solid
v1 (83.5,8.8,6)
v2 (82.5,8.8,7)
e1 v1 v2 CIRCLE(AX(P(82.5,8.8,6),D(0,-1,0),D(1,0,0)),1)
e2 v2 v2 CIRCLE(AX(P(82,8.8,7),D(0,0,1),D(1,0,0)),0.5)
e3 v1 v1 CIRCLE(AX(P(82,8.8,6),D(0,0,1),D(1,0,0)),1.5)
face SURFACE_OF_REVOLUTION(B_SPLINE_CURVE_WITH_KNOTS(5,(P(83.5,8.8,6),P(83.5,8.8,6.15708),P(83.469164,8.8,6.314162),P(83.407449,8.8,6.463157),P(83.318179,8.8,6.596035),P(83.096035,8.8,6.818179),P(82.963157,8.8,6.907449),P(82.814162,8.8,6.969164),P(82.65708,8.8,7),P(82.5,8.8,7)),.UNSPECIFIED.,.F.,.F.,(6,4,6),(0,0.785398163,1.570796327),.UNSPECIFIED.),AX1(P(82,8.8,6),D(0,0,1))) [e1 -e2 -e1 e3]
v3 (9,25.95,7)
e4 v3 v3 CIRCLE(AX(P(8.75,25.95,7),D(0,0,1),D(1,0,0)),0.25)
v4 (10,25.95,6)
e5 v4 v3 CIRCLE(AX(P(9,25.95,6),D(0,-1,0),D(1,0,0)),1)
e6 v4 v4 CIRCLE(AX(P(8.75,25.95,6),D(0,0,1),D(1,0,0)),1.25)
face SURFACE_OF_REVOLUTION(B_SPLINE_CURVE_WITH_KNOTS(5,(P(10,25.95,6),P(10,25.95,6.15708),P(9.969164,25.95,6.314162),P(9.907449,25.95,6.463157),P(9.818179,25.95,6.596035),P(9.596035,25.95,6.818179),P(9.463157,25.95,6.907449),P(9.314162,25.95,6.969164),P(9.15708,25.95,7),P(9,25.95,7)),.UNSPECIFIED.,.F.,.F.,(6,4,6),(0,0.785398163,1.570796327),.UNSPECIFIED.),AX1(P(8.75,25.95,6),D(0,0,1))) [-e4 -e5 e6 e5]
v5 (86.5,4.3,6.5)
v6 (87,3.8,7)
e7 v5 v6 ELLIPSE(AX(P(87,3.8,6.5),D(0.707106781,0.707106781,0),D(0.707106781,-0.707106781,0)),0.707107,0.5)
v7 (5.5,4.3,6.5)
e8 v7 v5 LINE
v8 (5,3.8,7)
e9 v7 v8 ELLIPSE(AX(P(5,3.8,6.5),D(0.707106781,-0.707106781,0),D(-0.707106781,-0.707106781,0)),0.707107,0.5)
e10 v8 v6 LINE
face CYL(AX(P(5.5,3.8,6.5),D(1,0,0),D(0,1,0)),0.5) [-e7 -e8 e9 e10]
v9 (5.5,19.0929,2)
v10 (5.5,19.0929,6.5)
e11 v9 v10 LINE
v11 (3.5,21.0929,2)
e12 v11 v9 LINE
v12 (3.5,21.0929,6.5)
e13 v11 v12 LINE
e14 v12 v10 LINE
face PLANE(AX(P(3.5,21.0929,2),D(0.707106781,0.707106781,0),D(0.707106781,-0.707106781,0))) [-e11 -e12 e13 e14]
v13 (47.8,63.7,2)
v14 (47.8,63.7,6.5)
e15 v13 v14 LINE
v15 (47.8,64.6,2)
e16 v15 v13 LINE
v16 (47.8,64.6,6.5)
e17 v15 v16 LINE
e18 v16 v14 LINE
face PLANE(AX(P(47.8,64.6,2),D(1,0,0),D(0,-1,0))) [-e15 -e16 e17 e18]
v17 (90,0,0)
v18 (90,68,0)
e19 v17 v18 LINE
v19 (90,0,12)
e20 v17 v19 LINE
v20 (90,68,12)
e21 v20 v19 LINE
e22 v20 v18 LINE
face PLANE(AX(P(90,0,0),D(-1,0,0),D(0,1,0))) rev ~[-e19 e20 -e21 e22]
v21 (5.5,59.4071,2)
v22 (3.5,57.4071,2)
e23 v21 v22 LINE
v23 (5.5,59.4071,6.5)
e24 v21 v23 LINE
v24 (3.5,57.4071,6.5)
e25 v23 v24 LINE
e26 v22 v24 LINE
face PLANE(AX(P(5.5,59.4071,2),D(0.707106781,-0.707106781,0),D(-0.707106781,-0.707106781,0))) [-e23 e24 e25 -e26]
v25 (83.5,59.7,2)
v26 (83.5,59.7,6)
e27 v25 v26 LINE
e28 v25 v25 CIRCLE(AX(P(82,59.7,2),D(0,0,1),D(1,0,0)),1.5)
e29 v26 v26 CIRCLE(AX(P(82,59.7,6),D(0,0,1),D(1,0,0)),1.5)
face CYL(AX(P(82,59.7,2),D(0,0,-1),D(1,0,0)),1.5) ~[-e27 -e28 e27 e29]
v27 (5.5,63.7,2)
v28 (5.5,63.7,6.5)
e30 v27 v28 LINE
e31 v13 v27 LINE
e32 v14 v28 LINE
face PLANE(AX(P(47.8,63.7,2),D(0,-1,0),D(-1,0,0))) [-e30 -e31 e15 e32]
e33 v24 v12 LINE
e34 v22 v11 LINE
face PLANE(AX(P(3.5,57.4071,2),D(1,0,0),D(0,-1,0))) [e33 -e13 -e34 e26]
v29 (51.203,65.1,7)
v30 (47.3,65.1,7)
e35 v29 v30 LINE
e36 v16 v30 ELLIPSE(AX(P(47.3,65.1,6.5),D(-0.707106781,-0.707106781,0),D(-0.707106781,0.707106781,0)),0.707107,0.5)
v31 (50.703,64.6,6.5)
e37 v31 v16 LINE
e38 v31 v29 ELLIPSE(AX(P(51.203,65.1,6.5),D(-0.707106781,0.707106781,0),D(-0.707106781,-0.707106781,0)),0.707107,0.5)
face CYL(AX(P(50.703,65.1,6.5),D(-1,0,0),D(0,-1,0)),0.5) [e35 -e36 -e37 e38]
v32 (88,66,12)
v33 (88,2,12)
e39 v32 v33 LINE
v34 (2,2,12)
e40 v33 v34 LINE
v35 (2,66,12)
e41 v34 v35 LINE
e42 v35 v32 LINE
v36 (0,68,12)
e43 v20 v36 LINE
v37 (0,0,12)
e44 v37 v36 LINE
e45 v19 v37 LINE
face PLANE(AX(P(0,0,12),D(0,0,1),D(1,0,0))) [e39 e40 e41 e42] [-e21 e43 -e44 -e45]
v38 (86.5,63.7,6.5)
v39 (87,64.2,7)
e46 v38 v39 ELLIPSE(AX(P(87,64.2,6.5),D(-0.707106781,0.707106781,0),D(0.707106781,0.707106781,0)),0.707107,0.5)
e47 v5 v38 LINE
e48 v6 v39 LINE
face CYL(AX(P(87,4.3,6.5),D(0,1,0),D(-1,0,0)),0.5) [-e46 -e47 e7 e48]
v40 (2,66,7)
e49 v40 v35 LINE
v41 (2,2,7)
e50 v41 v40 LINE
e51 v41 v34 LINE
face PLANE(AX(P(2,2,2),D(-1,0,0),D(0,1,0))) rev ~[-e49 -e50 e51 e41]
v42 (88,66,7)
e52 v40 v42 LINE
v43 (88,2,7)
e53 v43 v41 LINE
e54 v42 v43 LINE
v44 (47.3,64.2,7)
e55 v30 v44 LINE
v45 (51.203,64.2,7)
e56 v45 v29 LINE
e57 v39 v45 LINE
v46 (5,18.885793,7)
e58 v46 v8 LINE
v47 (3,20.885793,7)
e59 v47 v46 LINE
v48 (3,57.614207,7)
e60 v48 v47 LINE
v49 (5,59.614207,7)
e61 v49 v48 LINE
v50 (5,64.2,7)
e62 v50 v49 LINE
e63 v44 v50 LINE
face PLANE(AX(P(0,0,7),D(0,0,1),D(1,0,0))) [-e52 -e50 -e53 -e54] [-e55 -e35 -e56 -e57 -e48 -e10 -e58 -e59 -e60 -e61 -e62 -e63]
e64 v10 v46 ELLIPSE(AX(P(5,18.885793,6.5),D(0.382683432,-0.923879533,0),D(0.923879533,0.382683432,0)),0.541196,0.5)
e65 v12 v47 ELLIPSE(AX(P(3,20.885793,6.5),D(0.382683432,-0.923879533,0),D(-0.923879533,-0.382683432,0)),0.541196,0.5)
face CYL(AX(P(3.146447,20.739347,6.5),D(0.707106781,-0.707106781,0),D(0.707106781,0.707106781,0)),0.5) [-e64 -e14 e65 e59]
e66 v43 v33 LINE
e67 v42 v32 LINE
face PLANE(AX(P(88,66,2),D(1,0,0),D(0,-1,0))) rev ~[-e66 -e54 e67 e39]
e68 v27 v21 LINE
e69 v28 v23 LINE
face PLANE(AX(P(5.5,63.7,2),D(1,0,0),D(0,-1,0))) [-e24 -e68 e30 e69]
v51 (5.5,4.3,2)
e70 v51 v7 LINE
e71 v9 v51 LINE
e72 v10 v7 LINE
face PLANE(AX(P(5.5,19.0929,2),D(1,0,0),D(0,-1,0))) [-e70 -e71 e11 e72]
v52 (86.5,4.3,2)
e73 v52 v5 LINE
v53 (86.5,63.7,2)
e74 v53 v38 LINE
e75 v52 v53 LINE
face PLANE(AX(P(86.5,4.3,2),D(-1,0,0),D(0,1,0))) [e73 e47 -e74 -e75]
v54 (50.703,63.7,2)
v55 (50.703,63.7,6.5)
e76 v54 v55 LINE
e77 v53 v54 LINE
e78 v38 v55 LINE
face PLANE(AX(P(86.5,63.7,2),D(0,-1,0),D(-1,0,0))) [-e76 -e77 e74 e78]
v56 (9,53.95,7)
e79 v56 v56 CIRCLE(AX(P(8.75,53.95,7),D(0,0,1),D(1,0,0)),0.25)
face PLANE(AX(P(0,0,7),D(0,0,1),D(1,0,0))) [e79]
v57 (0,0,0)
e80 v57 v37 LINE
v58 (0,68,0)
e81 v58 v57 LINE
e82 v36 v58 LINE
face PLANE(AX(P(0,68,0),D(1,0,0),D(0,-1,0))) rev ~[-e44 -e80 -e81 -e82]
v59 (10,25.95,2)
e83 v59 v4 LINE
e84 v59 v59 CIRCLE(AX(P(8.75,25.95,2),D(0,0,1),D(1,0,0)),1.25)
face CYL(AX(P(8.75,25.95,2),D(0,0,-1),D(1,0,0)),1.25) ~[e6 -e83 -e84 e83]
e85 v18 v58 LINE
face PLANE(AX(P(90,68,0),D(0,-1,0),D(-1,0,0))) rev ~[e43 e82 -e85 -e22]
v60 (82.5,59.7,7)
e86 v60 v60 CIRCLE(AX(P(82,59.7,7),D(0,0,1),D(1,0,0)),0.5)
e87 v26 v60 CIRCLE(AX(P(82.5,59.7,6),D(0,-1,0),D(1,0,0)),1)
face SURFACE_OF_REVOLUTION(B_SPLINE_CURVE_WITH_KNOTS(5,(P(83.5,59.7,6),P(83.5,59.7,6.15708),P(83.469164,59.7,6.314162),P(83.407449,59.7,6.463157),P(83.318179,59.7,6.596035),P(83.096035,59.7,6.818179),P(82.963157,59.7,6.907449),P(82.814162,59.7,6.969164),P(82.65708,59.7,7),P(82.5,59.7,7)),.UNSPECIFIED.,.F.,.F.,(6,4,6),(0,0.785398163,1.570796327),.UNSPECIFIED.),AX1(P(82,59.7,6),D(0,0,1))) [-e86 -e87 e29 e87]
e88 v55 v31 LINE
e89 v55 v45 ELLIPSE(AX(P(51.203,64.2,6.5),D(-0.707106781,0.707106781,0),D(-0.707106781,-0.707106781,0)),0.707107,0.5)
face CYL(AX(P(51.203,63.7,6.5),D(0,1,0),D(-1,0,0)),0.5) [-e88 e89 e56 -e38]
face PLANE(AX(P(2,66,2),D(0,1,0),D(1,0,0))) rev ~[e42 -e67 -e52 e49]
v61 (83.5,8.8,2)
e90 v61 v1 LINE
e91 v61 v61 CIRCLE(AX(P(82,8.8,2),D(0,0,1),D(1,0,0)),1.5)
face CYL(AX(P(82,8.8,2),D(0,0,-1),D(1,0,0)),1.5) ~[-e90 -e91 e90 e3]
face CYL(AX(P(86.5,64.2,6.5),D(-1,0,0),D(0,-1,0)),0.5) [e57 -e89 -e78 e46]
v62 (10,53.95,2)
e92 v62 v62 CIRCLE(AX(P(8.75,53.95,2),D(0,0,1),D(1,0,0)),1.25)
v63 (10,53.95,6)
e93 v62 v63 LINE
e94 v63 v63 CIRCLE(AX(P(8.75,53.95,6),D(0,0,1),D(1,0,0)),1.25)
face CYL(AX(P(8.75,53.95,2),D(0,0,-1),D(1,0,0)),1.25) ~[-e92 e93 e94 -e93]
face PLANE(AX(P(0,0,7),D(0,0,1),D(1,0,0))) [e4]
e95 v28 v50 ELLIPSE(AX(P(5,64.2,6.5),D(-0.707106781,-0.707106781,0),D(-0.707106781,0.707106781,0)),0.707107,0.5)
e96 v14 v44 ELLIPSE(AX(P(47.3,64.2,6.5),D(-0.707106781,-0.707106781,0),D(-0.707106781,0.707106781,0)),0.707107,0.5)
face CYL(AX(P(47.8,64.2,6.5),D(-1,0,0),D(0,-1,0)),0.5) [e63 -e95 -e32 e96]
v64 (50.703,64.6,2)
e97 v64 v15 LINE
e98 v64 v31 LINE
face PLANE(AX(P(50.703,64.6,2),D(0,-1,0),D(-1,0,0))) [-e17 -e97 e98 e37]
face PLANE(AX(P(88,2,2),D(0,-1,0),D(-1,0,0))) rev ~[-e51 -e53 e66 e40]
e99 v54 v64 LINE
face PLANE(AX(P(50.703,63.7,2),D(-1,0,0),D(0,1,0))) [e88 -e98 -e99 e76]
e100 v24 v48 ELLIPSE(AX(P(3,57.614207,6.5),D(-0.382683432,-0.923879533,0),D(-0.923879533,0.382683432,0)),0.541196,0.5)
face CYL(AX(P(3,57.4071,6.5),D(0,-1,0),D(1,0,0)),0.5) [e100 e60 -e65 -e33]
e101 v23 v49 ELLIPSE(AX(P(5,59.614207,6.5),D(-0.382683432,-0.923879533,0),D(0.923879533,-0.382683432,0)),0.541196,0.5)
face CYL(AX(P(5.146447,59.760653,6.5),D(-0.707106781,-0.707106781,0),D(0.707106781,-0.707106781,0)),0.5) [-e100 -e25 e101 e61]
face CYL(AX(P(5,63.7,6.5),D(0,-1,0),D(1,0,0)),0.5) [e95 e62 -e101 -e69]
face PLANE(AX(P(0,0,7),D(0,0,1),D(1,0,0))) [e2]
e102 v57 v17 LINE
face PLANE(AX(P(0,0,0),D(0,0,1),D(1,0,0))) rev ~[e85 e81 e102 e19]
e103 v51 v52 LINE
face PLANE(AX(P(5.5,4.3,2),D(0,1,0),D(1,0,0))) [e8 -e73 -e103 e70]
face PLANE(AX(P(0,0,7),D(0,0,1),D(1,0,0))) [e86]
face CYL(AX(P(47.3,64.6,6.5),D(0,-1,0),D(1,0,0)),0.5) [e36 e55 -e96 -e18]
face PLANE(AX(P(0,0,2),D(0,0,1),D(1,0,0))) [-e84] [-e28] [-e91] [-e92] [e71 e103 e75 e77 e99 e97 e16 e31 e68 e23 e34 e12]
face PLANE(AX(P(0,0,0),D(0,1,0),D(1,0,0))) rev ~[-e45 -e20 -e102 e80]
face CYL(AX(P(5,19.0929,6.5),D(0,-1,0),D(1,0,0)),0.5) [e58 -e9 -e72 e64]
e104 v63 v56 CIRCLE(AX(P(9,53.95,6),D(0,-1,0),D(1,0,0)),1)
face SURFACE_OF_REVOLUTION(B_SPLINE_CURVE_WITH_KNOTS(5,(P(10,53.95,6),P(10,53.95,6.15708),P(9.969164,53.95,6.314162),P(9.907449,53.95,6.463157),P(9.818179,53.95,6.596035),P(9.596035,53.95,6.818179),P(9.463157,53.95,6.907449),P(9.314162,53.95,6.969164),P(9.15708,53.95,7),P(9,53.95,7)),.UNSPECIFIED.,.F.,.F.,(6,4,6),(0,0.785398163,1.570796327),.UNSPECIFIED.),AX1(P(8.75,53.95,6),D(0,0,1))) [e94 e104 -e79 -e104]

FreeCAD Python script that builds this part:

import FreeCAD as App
import Part
import Sketcher

V = App.Vector
Q = App.Units.Quantity


def edges_at(feature, points):
    """Names of the edges that pass closest to the given points."""
    edges = feature.Shape.Edges
    near = lambda p: min(range(len(edges)), key=lambda i: edges[i].distToShape(Part.Vertex(*p))[0])
    return sorted({f"Edge{near(p) + 1}" for p in points})


def add_polygon(sketch, points):
    """Adds a closed chain of lines whose ends are joined by coincident constraints."""
    first, n = sketch.GeometryCount, len(points)
    for a, b in zip(points, points[1:] + points[:1]):
        sketch.addGeometry(Part.LineSegment(App.Vector(*a, 0), App.Vector(*b, 0)), False)
    for i in range(n):
        sketch.addConstraint(Sketcher.Constraint("Coincident", first + i, 2, first + (i + 1) % n, 1))

doc = App.newDocument("Part")
body = doc.addObject("PartDesign::Body", "Body")

sketch1 = body.newObject("Sketcher::SketchObject", "Sketch")
sketch1.AttachmentSupport = (doc.getObject("XY_Plane"), [""])
sketch1.MapMode = "FlatFace"
add_polygon(sketch1, [(0, 68), (0, 0), (90, 0), (90, 68)])
sketch1.addConstraint([
    Sketcher.Constraint("Vertical", 0),
    Sketcher.Constraint("Horizontal", 1),
    Sketcher.Constraint("Vertical", 2),
    Sketcher.Constraint("Horizontal", 3),
    Sketcher.Constraint("Coincident", 0, 2, -1, 1),
    Sketcher.Constraint("DistanceX", 1, 1, 1, 2, Q("90 mm")),
    Sketcher.Constraint("DistanceY", 0, 2, 0, 1, Q("68 mm")),
])
pad1 = body.newObject("PartDesign::Pad", "Pad")
pad1.Profile = sketch1
pad1.Length = 2

sketch2 = body.newObject("Sketcher::SketchObject", "Sketch001")
sketch2.AttachmentSupport = (doc.getObject("XY_Plane"), [""])
sketch2.MapMode = "FlatFace"
sketch2.AttachmentOffset = App.Placement(V(0, 0, 2), App.Rotation())
add_polygon(sketch2, [(90, 0), (90, 68), (0, 68), (0, 0)])
add_polygon(sketch2, [(2, 2), (2, 66), (88, 66), (88, 2)])
sketch2.addConstraint([
    Sketcher.Constraint("Vertical", 0),
    Sketcher.Constraint("Horizontal", 1),
    Sketcher.Constraint("Vertical", 2),
    Sketcher.Constraint("Horizontal", 3),
    Sketcher.Constraint("Vertical", 4),
    Sketcher.Constraint("Horizontal", 5),
    Sketcher.Constraint("Vertical", 6),
    Sketcher.Constraint("Horizontal", 7),
    Sketcher.Constraint("Coincident", 2, 2, -1, 1),
    Sketcher.Constraint("DistanceX", -1, 1, 4, 2, Q("2 mm")),
    Sketcher.Constraint("DistanceY", -1, 1, 6, 2, Q("2 mm")),
    Sketcher.Constraint("DistanceY", 4, 2, 1, 2, Q("2 mm")),
    Sketcher.Constraint("DistanceX", 5, 2, 0, 2, Q("2 mm")),
    Sketcher.Constraint("DistanceX", 1, 2, 1, 1, Q("90 mm")),
    Sketcher.Constraint("DistanceY", 0, 1, 0, 2, Q("68 mm")),
])
pad2 = body.newObject("PartDesign::Pad", "Pad001")
pad2.Profile = sketch2
pad2.Length = 10

sketch3 = body.newObject("Sketcher::SketchObject", "Sketch002")
sketch3.AttachmentSupport = (doc.getObject("XY_Plane"), [""])
sketch3.MapMode = "FlatFace"
sketch3.AttachmentOffset = App.Placement(V(0, 0, 2), App.Rotation())
add_polygon(sketch3, [(88, 66), (2, 66), (2, 2), (88, 2)])
add_polygon(sketch3, [(5.5, 63.7), (47.8, 63.7), (47.8, 64.6), (50.7, 64.6), (50.7, 63.7), (86.5, 63.7), (86.5, 4.3), (5.5, 4.3), (5.5, 19.1), (3.5, 21.1), (3.5, 57.4), (5.5, 59.4)])
sketch3.addGeometry(Part.Circle(V(82, 59.7, 0), V(0, 0, 1), 1.5), False)
sketch3.addGeometry(Part.Circle(V(8.8, 54, 0), V(0, 0, 1), 1.2), False)
sketch3.addGeometry(Part.Circle(V(8.8, 25.9, 0), V(0, 0, 1), 1.2), False)
sketch3.addGeometry(Part.Circle(V(82, 8.8, 0), V(0, 0, 1), 1.5), False)
sketch3.addConstraint([
    Sketcher.Constraint("Horizontal", 0),
    Sketcher.Constraint("Vertical", 1),
    Sketcher.Constraint("Horizontal", 2),
    Sketcher.Constraint("Vertical", 3),
    Sketcher.Constraint("Horizontal", 4),
    Sketcher.Constraint("Vertical", 5),
    Sketcher.Constraint("Horizontal", 6),
    Sketcher.Constraint("Vertical", 7),
    Sketcher.Constraint("Horizontal", 8),
    Sketcher.Constraint("Vertical", 9),
    Sketcher.Constraint("Horizontal", 10),
    Sketcher.Constraint("Vertical", 11),
    Sketcher.Constraint("Vertical", 13),
    Sketcher.Constraint("Vertical", 15),
    Sketcher.Constraint("Equal", 17, 18),
    Sketcher.Constraint("Equal", 16, 19),
    Sketcher.Constraint("Perpendicular", 12, 14),
    Sketcher.Constraint("Horizontal", 4, 2, 7, 2),
    Sketcher.Constraint("Vertical", 17, 3, 18, 3),
    Sketcher.Constraint("Vertical", 16, 3, 19, 3),
    Sketcher.Constraint("Vertical", 11, 2, 14, 2),
    Sketcher.Constraint("Equal", 12, 14),
    Sketcher.Constraint("Diameter", 16, Q("3 mm")),
    Sketcher.Constraint("Diameter", 17, Q("2.5 mm")),
    Sketcher.Constraint("DistanceX", 0, 2, 0, 1, Q("86 mm")),
    Sketcher.Constraint("DistanceY", 1, 2, 1, 1, Q("64 mm")),
    Sketcher.Constraint("DistanceX", -1, 1, 16, 3, Q("82 mm")),
    Sketcher.Constraint("DistanceX", -1, 1, 0, 2, Q("2 mm")),
    Sketcher.Constraint("DistanceY", -1, 1, 1, 2, Q("2 mm")),
    Sketcher.Constraint("DistanceY", 16, 3, 4, 2, Q("4 mm")),
    Sketcher.Constraint("DistanceX", 12, 2, 11, 2, Q("2 mm")),
    Sketcher.Constraint("DistanceX", -1, 1, 12, 2, Q("3.5 mm")),
    Sketcher.Constraint("DistanceY", 5, 2, 3, 2, Q("1.4 mm")),
    Sketcher.Constraint("DistanceX", 10, 2, 10, 1, Q("81 mm")),
    Sketcher.Constraint("DistanceX", 4, 1, 4, 2, Q("42.3 mm")),
    Sketcher.Constraint("DistanceY", 5, 1, 5, 2, Q("0.9 mm")),
    Sketcher.Constraint("DistanceY", 9, 2, 9, 1, Q("59.4 mm")),
    Sketcher.Constraint("DistanceY", 18, 3, 17, 3, Q("28 mm")),
    Sketcher.Constraint("DistanceY", -1, 1, 19, 3, Q("8.8 mm")),
    Sketcher.Constraint("DistanceX", 6, 1, 6, 2, Q("2.903 mm")),
    Sketcher.Constraint("DistanceY", 11, 1, 11, 2, Q("14.793 mm")),
    Sketcher.Constraint("DistanceY", 15, 1, 15, 2, Q("4.293 mm")),
    Sketcher.Constraint("DistanceX", -1, 1, 17, 3, Q("8.75 mm")),
    Sketcher.Constraint("DistanceY", -1, 1, 17, 3, Q("53.95 mm")),
])
pad3 = body.newObject("PartDesign::Pad", "Pad002")
pad3.Profile = sketch3
pad3.Length = 5
doc.recompute()

fillet = body.newObject("PartDesign::Fillet", "Fillet")
fillet.Base = (pad3, edges_at(pad3, [
    (7.5, 53.95, 7),
    (7.5, 25.95, 7),
    (80.5, 59.7, 7),
    (80.5, 8.8, 7),
]))
fillet.Radius = 1
doc.recompute()

fillet2 = body.newObject("PartDesign::Fillet", "Fillet001")
fillet2.Base = (fillet, edges_at(fillet, [
    (26.65, 63.7, 7),
    (5.5, 61.554, 7),
    (4.5, 58.407, 7),
    (3.5, 39.25, 7),
    (4.5, 20.093, 7),
    (5.5, 11.696, 7),
    (46, 4.3, 7),
    (86.5, 34, 7),
    (68.602, 63.7, 7),
    (49.252, 64.6, 7),
    (50.703, 64.15, 7),
    (47.8, 64.15, 7),
]))
fillet2.Radius = 0.5

doc.recompute()
